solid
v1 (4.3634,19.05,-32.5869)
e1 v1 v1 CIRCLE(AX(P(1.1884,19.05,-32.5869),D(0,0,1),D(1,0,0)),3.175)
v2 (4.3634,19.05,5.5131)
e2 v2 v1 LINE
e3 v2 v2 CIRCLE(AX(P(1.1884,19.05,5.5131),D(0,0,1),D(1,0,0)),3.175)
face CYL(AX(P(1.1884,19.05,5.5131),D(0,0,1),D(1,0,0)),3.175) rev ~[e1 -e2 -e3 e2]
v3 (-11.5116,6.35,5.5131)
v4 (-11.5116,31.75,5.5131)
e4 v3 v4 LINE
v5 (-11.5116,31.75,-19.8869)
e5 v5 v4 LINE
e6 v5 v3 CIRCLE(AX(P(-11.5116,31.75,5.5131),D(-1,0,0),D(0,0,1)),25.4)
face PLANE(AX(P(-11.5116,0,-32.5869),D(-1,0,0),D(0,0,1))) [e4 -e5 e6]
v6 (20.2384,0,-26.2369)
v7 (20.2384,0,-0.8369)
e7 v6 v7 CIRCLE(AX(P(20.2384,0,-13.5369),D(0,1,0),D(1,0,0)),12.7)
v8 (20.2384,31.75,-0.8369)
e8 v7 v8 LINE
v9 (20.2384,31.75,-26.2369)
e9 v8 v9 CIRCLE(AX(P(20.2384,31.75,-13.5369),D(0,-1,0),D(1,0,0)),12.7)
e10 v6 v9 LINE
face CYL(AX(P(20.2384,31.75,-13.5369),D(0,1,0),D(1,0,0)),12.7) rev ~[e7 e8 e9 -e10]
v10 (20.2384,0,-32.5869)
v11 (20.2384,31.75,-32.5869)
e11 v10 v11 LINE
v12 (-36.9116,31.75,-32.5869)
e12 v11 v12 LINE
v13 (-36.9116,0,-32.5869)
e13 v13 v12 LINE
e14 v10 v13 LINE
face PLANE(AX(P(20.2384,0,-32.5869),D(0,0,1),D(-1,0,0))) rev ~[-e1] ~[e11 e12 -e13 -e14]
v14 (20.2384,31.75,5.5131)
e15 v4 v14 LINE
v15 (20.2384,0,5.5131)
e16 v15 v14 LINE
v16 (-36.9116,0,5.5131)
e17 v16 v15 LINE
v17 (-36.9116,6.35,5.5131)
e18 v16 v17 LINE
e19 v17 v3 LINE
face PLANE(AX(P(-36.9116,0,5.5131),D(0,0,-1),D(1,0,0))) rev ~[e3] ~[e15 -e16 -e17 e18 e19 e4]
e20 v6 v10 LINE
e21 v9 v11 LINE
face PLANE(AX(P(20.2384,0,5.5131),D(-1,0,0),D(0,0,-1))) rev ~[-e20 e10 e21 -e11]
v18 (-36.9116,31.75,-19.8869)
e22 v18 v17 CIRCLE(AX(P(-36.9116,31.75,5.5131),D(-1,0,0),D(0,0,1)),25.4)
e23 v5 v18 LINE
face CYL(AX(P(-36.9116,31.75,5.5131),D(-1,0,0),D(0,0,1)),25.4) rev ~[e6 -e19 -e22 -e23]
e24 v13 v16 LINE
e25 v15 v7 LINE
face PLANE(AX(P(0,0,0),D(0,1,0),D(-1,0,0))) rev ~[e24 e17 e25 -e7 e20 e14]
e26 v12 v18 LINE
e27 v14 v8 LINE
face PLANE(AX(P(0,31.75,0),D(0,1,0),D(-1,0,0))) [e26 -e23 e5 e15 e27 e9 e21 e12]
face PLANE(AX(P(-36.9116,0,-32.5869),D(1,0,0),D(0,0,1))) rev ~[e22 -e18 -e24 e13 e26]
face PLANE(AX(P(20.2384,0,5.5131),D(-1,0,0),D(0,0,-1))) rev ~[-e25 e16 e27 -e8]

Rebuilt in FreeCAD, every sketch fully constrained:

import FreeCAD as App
import Part
import Sketcher

V = App.Vector
Q = App.Units.Quantity

doc = App.newDocument("Part")
params = doc.addObject("Spreadsheet::Sheet", "Params")
for row, (alias, value) in enumerate([
    ("sketch1_height", "1.5 in"),
    ("sketch1_width", "2.25 in"),
    ("pad1_length", "1.25 in"),
    ("sketch2_diameter", "1 in"),
    ("pocket1_length", "1.25 in"),
    ("sketch3_diameter", "2 in"),
    ("pocket2_length", "1 in"),
    ("sketch4_diameter", "0.25 in"),
    ("pocket3_length", "2 in"),
], start=1):
    params.set(f"A{row}", alias)
    params.set(f"B{row}", "=" + value)
    params.setAlias(f"B{row}", alias)

body = doc.addObject("PartDesign::Body", "Body")

# Sketch on XZ plane
sketch1 = body.newObject("Sketcher::SketchObject", "Sketch")
sketch1.AttachmentSupport = (doc.getObject("XZ_Plane"), [""])
sketch1.MapMode = "FlatFace"
sketch1.addGeometry([
    Part.LineSegment(V(-36.9116, -32.5869, 0), V(-36.9116, 5.5131, 0)),
    Part.LineSegment(V(-36.9116, 5.5131, 0), V(20.2384, 5.5131, 0)),
    Part.LineSegment(V(20.2384, 5.5131, 0), V(20.2384, -32.5869, 0)),
    Part.LineSegment(V(20.2384, -32.5869, 0), V(-36.9116, -32.5869, 0)),
], False)
sketch1.addConstraint([
    Sketcher.Constraint("Coincident", 0, 2, 1, 1),
    Sketcher.Constraint("Coincident", 1, 2, 2, 1),
    Sketcher.Constraint("Coincident", 2, 2, 3, 1),
    Sketcher.Constraint("Coincident", 3, 2, 0, 1),
    Sketcher.Constraint("Vertical", 0),
    Sketcher.Constraint("Horizontal", 1),
    Sketcher.Constraint("Vertical", 2),
    Sketcher.Constraint("Horizontal", 3),
    Sketcher.Constraint("DistanceY", 0, 1, 0, 2, Q("1.5 in")),
    Sketcher.Constraint("DistanceX", 1, 1, 1, 2, Q("2.25 in")),
    Sketcher.Constraint("DistanceX", 0, 2, -1, 1, Q("36.9116 mm")),
    Sketcher.Constraint("DistanceY", -1, 1, 0, 2, Q("5.513 mm")),
])
sketch1.setExpression("Constraints[8]", "Params.sketch1_height")
sketch1.setExpression("Constraints[9]", "Params.sketch1_width")
pad1 = body.newObject("PartDesign::Pad", "Pad")
pad1.Profile = sketch1
pad1.setExpression("Length", "Params.pad1_length")
pad1.Reversed = True

# Sketch on XZ plane
sketch2 = body.newObject("Sketcher::SketchObject", "Sketch001")
sketch2.AttachmentSupport = (doc.getObject("XZ_Plane"), [""])
sketch2.MapMode = "FlatFace"
sketch2.AttachmentOffset = App.Placement(V(0, 0, -1.25 * 25.4), App.Rotation())
sketch2.addGeometry(Part.Circle(V(20.2384, -13.5369, 0), V(0, 0, 1), 12.7), False)
sketch2.addConstraint([
    Sketcher.Constraint("Diameter", 0, Q("1 in")),
    Sketcher.Constraint("DistanceX", -1, 1, 0, 3, Q("20.2384 mm")),
    Sketcher.Constraint("DistanceY", 0, 3, -1, 1, Q("13.537 mm")),
])
sketch2.setExpression("Constraints[0]", "Params.sketch2_diameter")
pocket1 = body.newObject("PartDesign::Pocket", "Pocket")
pocket1.Profile = sketch2
pocket1.setExpression("Length", "Params.pocket1_length")
pocket1.Reversed = True

# Sketch on YZ plane
sketch3 = body.newObject("Sketcher::SketchObject", "Sketch002")
sketch3.AttachmentSupport = (doc.getObject("YZ_Plane"), [""])
sketch3.MapMode = "FlatFace"
sketch3.AttachmentOffset = App.Placement(V(0, 0, -36.9116), App.Rotation())
sketch3.addGeometry(Part.Circle(V(31.75, 5.5131, 0), V(0, 0, 1), 25.4), False)
sketch3.addConstraint([
    Sketcher.Constraint("Diameter", 0, Q("2 in")),
    Sketcher.Constraint("DistanceX", -1, 1, 0, 3, Q("1.25 in")),
    Sketcher.Constraint("DistanceY", -1, 1, 0, 3, Q("5.513 mm")),
])
sketch3.setExpression("Constraints[0]", "Params.sketch3_diameter")
pocket2 = body.newObject("PartDesign::Pocket", "Pocket001")
pocket2.Profile = sketch3
pocket2.setExpression("Length", "Params.pocket2_length")
pocket2.Reversed = True

# Sketch on XY plane
sketch4 = body.newObject("Sketcher::SketchObject", "Sketch003")
sketch4.AttachmentSupport = (doc.getObject("XY_Plane"), [""])
sketch4.MapMode = "FlatFace"
sketch4.AttachmentOffset = App.Placement(V(0, 0, 5.5131), App.Rotation())
sketch4.addGeometry(Part.Circle(V(1.1884, 19.05, 0), V(0, 0, 1), 3.175), False)
sketch4.addConstraint([
    Sketcher.Constraint("Diameter", 0, Q("0.25 in")),
    Sketcher.Constraint("DistanceY", -1, 1, 0, 3, Q("0.75 in")),
    Sketcher.Constraint("DistanceX", -1, 1, 0, 3, Q("1.1884 mm")),
])
sketch4.setExpression("Constraints[0]", "Params.sketch4_diameter")
pocket3 = body.newObject("PartDesign::Pocket", "Pocket002")
pocket3.Profile = sketch4
pocket3.setExpression("Length", "Params.pocket3_length")

doc.recompute()
